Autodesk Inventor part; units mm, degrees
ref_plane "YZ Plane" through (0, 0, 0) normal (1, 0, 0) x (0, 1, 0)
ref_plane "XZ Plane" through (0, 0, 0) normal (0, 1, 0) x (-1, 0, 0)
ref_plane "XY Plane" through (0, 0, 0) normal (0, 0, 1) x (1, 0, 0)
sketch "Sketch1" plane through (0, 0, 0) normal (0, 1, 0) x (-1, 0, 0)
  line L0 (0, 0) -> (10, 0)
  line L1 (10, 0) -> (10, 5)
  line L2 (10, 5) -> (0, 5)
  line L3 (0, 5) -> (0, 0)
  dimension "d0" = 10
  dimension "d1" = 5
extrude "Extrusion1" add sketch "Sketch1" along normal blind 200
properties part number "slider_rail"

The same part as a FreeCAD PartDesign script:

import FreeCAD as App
import Part
import Sketcher
from FreeCAD import Vector
Q = App.Units.Quantity

doc = App.newDocument("Part")
body = doc.addObject("PartDesign::Body", "Body")

sketch1 = body.newObject("Sketcher::SketchObject", "Sketch")
sketch1.AttachmentSupport = (doc.getObject("XZ_Plane"), [""])
sketch1.MapMode = "FlatFace"
sketch1.addGeometry(Part.LineSegment(Vector(0, 5, 0), Vector(0, 0, 0)), False)
sketch1.addGeometry(Part.LineSegment(Vector(0, 0, 0), Vector(-10, 0, 0)), False)
sketch1.addGeometry(Part.LineSegment(Vector(-10, 0, 0), Vector(-10, 5, 0)), False)
sketch1.addGeometry(Part.LineSegment(Vector(-10, 5, 0), Vector(0, 5, 0)), False)
sketch1.addConstraint(Sketcher.Constraint("Coincident", 0, 2, 1, 1))
sketch1.addConstraint(Sketcher.Constraint("Coincident", 1, 2, 2, 1))
sketch1.addConstraint(Sketcher.Constraint("Coincident", 2, 2, 3, 1))
sketch1.addConstraint(Sketcher.Constraint("Coincident", 3, 2, 0, 1))
sketch1.addConstraint(Sketcher.Constraint("Vertical", 0))
sketch1.addConstraint(Sketcher.Constraint("Horizontal", 1))
sketch1.addConstraint(Sketcher.Constraint("Vertical", 2))
sketch1.addConstraint(Sketcher.Constraint("Horizontal", 3))
sketch1.addConstraint(Sketcher.Constraint("Coincident", 0, 2, -1, 1))
sketch1.addConstraint(Sketcher.Constraint("DistanceX", 1, 2, 1, 1, Q("10 mm")))
sketch1.addConstraint(Sketcher.Constraint("DistanceY", 0, 2, 0, 1, Q("5 mm")))
pad1 = body.newObject("PartDesign::Pad", "Pad")
pad1.Profile = sketch1
pad1.Length = 200
pad1.Reversed = True

doc.recompute()
